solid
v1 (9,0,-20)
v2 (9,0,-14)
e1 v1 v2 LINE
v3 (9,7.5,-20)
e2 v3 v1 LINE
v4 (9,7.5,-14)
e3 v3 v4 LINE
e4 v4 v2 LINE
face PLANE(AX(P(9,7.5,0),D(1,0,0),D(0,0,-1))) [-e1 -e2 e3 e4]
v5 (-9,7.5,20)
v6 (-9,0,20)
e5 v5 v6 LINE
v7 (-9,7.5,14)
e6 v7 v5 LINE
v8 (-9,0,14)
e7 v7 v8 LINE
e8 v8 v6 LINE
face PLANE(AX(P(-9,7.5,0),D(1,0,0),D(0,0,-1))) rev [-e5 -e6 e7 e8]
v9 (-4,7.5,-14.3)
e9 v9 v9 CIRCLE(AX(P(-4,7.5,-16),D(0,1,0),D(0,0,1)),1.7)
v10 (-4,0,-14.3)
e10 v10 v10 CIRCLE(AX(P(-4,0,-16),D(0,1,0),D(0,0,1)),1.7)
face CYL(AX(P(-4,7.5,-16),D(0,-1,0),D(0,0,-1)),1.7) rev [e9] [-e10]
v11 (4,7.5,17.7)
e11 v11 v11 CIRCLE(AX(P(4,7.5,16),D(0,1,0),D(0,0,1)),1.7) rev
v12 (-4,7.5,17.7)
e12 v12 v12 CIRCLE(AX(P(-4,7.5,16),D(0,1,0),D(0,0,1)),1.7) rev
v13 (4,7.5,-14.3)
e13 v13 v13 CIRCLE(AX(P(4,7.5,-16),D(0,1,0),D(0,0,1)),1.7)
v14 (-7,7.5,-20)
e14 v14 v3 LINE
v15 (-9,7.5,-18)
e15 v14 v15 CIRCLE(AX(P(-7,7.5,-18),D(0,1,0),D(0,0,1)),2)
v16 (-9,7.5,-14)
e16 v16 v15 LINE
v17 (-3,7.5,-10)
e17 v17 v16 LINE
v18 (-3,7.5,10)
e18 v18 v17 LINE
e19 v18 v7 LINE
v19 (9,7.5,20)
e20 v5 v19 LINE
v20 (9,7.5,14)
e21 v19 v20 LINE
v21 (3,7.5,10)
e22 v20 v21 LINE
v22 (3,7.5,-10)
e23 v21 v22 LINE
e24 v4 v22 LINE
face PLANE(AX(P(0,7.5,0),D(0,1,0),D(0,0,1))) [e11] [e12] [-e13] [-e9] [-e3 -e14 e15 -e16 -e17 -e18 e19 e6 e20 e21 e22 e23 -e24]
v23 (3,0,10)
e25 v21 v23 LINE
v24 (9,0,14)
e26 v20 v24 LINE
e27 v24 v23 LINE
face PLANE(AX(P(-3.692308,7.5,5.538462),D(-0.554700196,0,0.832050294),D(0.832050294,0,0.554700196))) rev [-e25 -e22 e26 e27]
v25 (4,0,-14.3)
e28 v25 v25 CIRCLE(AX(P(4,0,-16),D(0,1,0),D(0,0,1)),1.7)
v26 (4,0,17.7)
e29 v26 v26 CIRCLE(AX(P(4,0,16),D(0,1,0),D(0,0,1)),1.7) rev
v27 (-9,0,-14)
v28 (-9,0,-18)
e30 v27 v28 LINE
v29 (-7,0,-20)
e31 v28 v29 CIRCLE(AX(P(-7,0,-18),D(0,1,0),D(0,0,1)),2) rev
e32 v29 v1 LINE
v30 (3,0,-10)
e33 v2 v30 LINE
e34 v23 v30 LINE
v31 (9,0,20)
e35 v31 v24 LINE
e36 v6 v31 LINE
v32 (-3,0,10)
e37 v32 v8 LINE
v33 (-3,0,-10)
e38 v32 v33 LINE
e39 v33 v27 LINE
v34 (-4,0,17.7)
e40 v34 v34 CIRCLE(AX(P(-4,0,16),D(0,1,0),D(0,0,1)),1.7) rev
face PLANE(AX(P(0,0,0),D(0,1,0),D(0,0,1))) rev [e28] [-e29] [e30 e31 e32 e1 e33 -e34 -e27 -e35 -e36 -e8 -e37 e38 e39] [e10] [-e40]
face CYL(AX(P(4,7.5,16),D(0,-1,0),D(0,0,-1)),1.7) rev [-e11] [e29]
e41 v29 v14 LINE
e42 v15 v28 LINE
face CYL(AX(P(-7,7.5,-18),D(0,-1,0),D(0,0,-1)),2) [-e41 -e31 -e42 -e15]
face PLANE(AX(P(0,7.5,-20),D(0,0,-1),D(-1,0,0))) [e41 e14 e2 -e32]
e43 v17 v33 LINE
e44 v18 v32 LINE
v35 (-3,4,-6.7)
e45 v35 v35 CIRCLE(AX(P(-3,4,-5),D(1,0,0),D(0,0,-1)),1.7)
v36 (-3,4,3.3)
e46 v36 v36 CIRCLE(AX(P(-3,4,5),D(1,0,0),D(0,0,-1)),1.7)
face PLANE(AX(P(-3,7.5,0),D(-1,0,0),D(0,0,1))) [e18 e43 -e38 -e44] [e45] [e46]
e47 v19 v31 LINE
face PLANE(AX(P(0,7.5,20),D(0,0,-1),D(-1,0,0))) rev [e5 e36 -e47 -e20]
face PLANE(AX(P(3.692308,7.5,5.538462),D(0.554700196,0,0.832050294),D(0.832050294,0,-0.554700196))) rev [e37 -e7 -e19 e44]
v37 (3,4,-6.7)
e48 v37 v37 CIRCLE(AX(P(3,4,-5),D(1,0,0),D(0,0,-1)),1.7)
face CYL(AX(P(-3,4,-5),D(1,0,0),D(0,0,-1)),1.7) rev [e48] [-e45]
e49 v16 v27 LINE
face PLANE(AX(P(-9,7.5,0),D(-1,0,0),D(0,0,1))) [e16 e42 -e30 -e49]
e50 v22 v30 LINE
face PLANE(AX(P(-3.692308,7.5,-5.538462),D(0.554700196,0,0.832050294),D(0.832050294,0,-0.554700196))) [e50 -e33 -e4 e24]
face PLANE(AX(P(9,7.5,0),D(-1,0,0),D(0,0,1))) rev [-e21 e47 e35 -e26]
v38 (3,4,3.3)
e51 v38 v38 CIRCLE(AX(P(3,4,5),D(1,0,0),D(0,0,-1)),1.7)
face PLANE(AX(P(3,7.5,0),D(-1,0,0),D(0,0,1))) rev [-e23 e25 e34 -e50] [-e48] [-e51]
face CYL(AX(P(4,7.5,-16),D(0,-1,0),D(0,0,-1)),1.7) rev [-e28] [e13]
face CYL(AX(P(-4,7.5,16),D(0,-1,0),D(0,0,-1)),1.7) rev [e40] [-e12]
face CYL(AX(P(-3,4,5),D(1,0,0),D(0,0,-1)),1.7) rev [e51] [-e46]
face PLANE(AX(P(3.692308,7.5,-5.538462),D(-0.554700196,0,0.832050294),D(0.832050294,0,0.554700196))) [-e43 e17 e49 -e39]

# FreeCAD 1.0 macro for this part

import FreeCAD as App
import Part
import Sketcher


def edges_at(feature, points):
    """Names of the edges that pass closest to the given points."""
    edges = feature.Shape.Edges
    near = lambda p: min(range(len(edges)), key=lambda i: edges[i].distToShape(Part.Vertex(*p))[0])
    return sorted({f"Edge{near(p) + 1}" for p in points})


def add_polygon(sketch, points):
    """Adds a closed chain of lines whose ends are joined by coincident constraints."""
    first, n = sketch.GeometryCount, len(points)
    for a, b in zip(points, points[1:] + points[:1]):
        sketch.addGeometry(Part.LineSegment(App.Vector(*a, 0), App.Vector(*b, 0)), False)
    for i in range(n):
        sketch.addConstraint(Sketcher.Constraint("Coincident", first + i, 2, first + (i + 1) % n, 1))

doc = App.newDocument("Part")
body = doc.addObject("PartDesign::Body", "Body")

# Sketch on XZ plane
sketch1 = body.newObject("Sketcher::SketchObject", "Sketch")
sketch1.AttachmentSupport = (doc.getObject("XZ_Plane"), [""])
sketch1.MapMode = "FlatFace"
add_polygon(sketch1, [(-3, 10), (-9, 14), (-9, 20), (9, 20), (9, 14), (3, 10), (3, -10), (9, -14), (9, -20), (-9, -20), (-9, -14), (-3, -10)])  # lines 0-11
sketch1.addGeometry(Part.Circle(App.Vector(4, 16, 0), App.Vector(0, 0, 1), 1.7), False)  # 12
sketch1.addGeometry(Part.Circle(App.Vector(-4, 16, 0), App.Vector(0, 0, 1), 1.7), False)  # 13
sketch1.addGeometry(Part.Circle(App.Vector(-4, -16, 0), App.Vector(0, 0, 1), 1.7), False)  # 14
sketch1.addGeometry(Part.Circle(App.Vector(4, -16, 0), App.Vector(0, 0, 1), 1.7), False)  # 15
sketch1.addConstraint([
    Sketcher.Constraint("Vertical", 1),
    Sketcher.Constraint("Horizontal", 2),
    Sketcher.Constraint("Vertical", 3),
    Sketcher.Constraint("Vertical", 5),
    Sketcher.Constraint("Vertical", 7),
    Sketcher.Constraint("Horizontal", 8),
    Sketcher.Constraint("Vertical", 9),
    Sketcher.Constraint("Vertical", 11),
    Sketcher.Constraint("Equal", 12, 13),
    Sketcher.Constraint("Equal", 13, 14),
    Sketcher.Constraint("Equal", 14, 15),
    Sketcher.Constraint("Symmetric", 12, 3, 14, 3, -1, 1),
    Sketcher.Constraint("Symmetric", 13, 3, 15, 3, -1, 1),
    Sketcher.Constraint("Symmetric", 0, 2, 6, 2, -1, 1),
    Sketcher.Constraint("Symmetric", 2, 2, 8, 2, -1, 1),
    Sketcher.Constraint("Symmetric", 4, 2, 10, 2, -1, 1),
    Sketcher.Constraint("Symmetric", 12, 3, 13, 3, -2),
    Sketcher.Constraint("Symmetric", 0, 2, 3, 2, -2),
    Sketcher.Constraint("Parallel", 0, 6),
    Sketcher.Constraint("Parallel", 4, 10),
    Sketcher.Constraint("Horizontal", 5, 2, 10, 2),
    Sketcher.Constraint("Diameter", 12, 3.4),
    Sketcher.Constraint("DistanceX", 2, 1, 2, 2, 18.0),
    Sketcher.Constraint("DistanceY", 1, 1, 1, 2, 6.0),
    Sketcher.Constraint("DistanceY", 5, 2, 5, 1, 20.0),
    Sketcher.Constraint("DistanceX", -1, 1, 12, 3, 4.0),
    Sketcher.Constraint("DistanceY", -1, 1, 12, 3, 16.0),
    Sketcher.Constraint("DistanceY", -1, 1, 0, 2, 14.0),
    Sketcher.Constraint("DistanceX", -1, 1, 4, 2, 3.0),
])
pad1 = body.newObject("PartDesign::Pad", "Pad")
pad1.Profile = sketch1
pad1.Length = 7.5
pad1.Reversed = True

# Sketch on YZ plane
sketch2 = body.newObject("Sketcher::SketchObject", "Sketch001")
sketch2.AttachmentSupport = (doc.getObject("YZ_Plane"), [""])
sketch2.MapMode = "FlatFace"
sketch2.AttachmentOffset = App.Placement(App.Vector(0, 0, 3), App.Rotation())
sketch2.addGeometry([
    Part.Circle(App.Vector(4, 5, 0), App.Vector(0, 0, 1), 1.7),
    Part.Circle(App.Vector(4, -5, 0), App.Vector(0, 0, 1), 1.7),
], False)
sketch2.addConstraint([
    Sketcher.Constraint("Equal", 0, 1),
    Sketcher.Constraint("Symmetric", 0, 3, 1, 3, -1),
    Sketcher.Constraint("Diameter", 0, 3.4),
    Sketcher.Constraint("DistanceX", -1, 1, 0, 3, 4.0),
    Sketcher.Constraint("DistanceY", -1, 1, 0, 3, 5.0),
])
pocket1 = body.newObject("PartDesign::Pocket", "Pocket")
pocket1.Profile = sketch2
pocket1.Length = 6
doc.recompute()

fillet = body.newObject("PartDesign::Fillet", "Fillet")
fillet.Base = (pocket1, edges_at(pocket1, [(-9, 3.75, -20)]))
fillet.Radius = 2

doc.recompute()
